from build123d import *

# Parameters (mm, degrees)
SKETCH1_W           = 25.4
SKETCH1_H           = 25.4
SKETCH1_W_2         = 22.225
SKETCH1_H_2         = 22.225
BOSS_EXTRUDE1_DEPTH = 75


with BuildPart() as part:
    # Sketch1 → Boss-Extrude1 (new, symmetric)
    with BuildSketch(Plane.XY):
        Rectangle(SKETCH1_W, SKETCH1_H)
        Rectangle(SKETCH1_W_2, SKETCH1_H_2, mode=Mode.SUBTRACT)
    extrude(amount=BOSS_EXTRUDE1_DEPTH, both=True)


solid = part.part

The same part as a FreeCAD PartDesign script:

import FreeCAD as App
import Part
import Sketcher

V = App.Vector
Q = App.Units.Quantity


def add_polygon(sketch, points):
    """Adds a closed chain of lines whose ends are joined by coincident constraints."""
    first, n = sketch.GeometryCount, len(points)
    for a, b in zip(points, points[1:] + points[:1]):
        sketch.addGeometry(Part.LineSegment(App.Vector(*a, 0), App.Vector(*b, 0)), False)
    for i in range(n):
        sketch.addConstraint(Sketcher.Constraint("Coincident", first + i, 2, first + (i + 1) % n, 1))

doc = App.newDocument("Part")
body = doc.addObject("PartDesign::Body", "Body")

# Sketch on XY plane
sketch1 = body.newObject("Sketcher::SketchObject", "Sketch")
sketch1.AttachmentSupport = (doc.getObject("XY_Plane"), [""])
sketch1.MapMode = "FlatFace"
add_polygon(sketch1, [(-13, 13), (-13, -13), (13, -13), (13, 13)])  # lines 0-3
add_polygon(sketch1, [(11, -11), (-11, -11), (-11, 11), (11, 11)])  # lines 4-7
sketch1.addConstraint(Sketcher.Constraint("Vertical", 0))
sketch1.addConstraint(Sketcher.Constraint("Horizontal", 1))
sketch1.addConstraint(Sketcher.Constraint("Vertical", 2))
sketch1.addConstraint(Sketcher.Constraint("Horizontal", 3))
sketch1.addConstraint(Sketcher.Constraint("Horizontal", 4))
sketch1.addConstraint(Sketcher.Constraint("Vertical", 5))
sketch1.addConstraint(Sketcher.Constraint("Horizontal", 6))
sketch1.addConstraint(Sketcher.Constraint("Vertical", 7))
sketch1.addConstraint(Sketcher.Constraint("Symmetric", 0, 2, 2, 2, -1, 1))
sketch1.addConstraint(Sketcher.Constraint("Symmetric", 4, 2, 6, 2, -1, 1))
sketch1.addConstraint(Sketcher.Constraint("Equal", 3, 0))
sketch1.addConstraint(Sketcher.Constraint("Equal", 6, 5))
sketch1.addConstraint(Sketcher.Constraint("DistanceX", 1, 1, 1, 2, Q("1 in")))
sketch1.addConstraint(Sketcher.Constraint("DistanceX", 4, 2, 4, 1, Q("0.875 in")))
pad1 = body.newObject("PartDesign::Pad", "Pad")
pad1.Profile = sketch1
pad1.Length = 150
pad1.Midplane = True

doc.recompute()
